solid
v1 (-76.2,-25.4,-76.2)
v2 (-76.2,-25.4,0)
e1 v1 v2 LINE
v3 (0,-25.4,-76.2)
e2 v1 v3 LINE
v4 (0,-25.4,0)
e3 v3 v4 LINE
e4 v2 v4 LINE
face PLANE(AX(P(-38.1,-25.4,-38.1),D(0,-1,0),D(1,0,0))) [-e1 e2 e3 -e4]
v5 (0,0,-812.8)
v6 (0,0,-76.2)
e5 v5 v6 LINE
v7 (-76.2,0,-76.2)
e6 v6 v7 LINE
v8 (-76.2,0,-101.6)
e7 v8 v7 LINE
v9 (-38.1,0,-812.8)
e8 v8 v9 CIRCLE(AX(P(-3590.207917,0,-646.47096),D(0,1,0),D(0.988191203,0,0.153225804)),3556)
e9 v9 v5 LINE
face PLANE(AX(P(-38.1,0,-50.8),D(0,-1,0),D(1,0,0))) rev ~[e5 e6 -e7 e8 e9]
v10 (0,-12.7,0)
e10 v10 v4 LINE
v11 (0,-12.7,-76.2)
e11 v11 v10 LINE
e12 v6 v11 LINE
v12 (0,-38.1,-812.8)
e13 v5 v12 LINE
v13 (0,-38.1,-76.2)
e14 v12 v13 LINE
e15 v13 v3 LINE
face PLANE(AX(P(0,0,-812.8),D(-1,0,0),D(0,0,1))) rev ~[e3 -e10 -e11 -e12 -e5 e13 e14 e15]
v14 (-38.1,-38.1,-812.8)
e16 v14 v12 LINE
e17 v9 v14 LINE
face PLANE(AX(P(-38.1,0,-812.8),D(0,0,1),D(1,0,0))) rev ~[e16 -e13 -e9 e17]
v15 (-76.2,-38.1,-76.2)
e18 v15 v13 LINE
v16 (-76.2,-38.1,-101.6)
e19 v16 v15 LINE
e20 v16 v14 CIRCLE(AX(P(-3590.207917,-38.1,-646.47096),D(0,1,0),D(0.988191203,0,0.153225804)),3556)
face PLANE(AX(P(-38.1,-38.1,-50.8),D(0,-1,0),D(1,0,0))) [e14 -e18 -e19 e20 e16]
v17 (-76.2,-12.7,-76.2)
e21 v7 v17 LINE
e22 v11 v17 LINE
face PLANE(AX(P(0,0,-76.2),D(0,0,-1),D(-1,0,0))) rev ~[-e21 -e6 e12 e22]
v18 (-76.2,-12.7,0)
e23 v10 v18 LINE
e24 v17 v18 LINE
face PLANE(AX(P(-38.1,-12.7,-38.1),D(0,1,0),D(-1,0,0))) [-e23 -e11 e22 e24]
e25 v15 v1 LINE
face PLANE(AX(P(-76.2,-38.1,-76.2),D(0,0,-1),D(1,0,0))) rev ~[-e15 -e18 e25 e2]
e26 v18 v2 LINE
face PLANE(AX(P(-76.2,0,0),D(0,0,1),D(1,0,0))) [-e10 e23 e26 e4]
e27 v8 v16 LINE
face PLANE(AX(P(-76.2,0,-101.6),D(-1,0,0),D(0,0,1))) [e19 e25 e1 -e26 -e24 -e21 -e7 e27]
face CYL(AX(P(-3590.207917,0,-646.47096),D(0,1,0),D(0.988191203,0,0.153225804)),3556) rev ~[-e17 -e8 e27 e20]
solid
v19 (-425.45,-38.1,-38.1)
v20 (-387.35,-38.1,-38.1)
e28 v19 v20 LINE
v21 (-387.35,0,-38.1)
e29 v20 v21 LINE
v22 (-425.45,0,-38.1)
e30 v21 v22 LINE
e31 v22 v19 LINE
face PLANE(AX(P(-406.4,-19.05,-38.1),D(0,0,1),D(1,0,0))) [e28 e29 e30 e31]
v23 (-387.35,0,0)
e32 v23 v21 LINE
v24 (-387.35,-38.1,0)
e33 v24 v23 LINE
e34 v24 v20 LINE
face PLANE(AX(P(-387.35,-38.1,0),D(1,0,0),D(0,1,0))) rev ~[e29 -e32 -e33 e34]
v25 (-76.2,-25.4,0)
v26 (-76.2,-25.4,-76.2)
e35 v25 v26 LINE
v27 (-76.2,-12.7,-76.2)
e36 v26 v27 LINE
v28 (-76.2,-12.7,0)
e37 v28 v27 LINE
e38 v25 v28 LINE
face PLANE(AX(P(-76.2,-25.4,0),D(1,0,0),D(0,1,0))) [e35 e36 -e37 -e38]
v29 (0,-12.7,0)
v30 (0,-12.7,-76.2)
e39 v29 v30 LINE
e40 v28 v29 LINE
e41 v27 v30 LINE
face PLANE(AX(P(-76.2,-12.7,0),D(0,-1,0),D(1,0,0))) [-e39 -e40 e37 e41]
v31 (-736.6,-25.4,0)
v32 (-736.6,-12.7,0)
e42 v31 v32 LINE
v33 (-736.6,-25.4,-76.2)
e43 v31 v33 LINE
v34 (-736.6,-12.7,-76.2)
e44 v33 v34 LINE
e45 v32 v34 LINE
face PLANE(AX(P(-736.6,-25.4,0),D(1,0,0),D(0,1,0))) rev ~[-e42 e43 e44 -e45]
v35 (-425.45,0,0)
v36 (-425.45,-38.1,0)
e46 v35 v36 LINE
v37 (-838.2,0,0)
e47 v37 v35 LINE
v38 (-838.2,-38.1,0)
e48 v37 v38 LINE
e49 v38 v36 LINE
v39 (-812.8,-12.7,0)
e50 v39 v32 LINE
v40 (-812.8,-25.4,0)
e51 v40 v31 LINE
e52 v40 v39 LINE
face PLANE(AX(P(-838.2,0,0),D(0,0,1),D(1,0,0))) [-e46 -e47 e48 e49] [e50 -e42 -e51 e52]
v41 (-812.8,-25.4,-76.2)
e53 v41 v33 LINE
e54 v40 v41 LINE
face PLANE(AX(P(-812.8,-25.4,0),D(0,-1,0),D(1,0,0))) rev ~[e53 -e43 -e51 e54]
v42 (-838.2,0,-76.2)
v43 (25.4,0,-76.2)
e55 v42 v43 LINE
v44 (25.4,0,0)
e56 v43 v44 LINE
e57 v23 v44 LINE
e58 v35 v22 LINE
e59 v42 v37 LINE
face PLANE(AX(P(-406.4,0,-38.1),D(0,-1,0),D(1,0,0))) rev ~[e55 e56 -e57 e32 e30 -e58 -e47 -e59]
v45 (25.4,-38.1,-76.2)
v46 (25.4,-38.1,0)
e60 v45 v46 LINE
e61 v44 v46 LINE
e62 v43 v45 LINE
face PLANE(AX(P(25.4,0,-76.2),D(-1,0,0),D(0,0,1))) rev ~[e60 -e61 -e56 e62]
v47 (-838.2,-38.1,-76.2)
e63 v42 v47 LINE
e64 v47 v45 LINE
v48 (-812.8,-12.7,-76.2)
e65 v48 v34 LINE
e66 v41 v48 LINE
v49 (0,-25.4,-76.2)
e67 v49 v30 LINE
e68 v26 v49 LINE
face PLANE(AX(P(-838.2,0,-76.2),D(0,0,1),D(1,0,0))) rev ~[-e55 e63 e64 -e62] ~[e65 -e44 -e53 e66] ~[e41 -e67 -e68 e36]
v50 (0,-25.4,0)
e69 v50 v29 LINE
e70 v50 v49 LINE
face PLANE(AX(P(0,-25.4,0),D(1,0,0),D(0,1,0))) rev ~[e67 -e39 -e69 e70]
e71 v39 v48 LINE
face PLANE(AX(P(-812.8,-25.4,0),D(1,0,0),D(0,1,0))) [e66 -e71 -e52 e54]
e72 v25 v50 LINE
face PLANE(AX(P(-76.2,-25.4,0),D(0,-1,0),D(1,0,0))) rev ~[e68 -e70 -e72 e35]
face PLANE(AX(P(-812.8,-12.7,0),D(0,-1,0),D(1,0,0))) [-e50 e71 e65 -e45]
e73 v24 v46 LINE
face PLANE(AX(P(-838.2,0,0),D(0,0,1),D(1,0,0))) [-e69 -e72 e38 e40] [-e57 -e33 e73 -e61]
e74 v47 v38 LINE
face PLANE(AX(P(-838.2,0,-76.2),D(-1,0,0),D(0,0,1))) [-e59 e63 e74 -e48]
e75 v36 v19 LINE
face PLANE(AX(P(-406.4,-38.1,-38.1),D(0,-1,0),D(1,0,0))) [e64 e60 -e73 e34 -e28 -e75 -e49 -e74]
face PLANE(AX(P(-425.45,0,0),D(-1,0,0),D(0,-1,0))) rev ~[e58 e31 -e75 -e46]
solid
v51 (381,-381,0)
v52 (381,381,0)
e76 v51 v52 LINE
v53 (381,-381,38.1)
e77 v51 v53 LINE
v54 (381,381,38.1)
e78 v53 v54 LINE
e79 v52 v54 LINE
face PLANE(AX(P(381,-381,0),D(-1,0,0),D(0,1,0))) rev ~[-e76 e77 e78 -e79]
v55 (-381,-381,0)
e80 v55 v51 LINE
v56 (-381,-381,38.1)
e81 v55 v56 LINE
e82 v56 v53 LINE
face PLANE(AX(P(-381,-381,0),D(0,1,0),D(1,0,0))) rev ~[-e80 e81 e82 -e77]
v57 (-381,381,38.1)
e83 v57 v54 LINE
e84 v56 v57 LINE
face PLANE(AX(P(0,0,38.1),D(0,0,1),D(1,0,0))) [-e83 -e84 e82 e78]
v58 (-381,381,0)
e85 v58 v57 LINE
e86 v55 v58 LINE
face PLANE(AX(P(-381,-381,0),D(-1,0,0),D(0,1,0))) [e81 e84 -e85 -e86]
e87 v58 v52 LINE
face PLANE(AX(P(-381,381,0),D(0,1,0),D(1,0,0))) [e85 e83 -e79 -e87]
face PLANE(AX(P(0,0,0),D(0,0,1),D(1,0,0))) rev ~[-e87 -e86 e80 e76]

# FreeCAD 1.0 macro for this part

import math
import FreeCAD as App
import Part
import Sketcher

V = App.Vector
Q = App.Units.Quantity

doc = App.newDocument("Part")
body = doc.addObject("PartDesign::Body", "Body")

sketch1 = body.newObject("Sketcher::SketchObject", "Sketch")
sketch1.AttachmentSupport = (doc.getObject("XZ_Plane"), [""])
sketch1.MapMode = "FlatFace"
sketch1.addGeometry([
    Part.LineSegment(V(-76, 0, 0), V(-76, -102, 0)),
    Part.ArcOfCircle(Part.Circle(V(-3590, -646, 0), V(0, 0, 1), 3556), math.radians(-2.68), math.radians(8.81)),
    Part.LineSegment(V(-38, -813, 0), V(0, -813, 0)),
    Part.LineSegment(V(0, -813, 0), V(0, 0, 0)),
    Part.LineSegment(V(0, 0, 0), V(-76, 0, 0)),
], False)
sketch1.addConstraint([
    Sketcher.Constraint("Coincident", 0, 2, 1, 2),
    Sketcher.Constraint("Coincident", 1, 1, 2, 1),
    Sketcher.Constraint("Coincident", 2, 2, 3, 1),
    Sketcher.Constraint("Coincident", 3, 2, 4, 1),
    Sketcher.Constraint("Coincident", 4, 2, 0, 1),
    Sketcher.Constraint("Vertical", 0),
    Sketcher.Constraint("Horizontal", 2),
    Sketcher.Constraint("Vertical", 3),
    Sketcher.Constraint("Horizontal", 4),
    Sketcher.Constraint("Coincident", 3, 2, -1, 1),
    Sketcher.Constraint("Radius", 1, Q("140 in")),
    Sketcher.Constraint("DistanceX", 4, 2, 4, 1, Q("3 in")),
    Sketcher.Constraint("DistanceY", 0, 2, 0, 1, Q("4 in")),
    Sketcher.Constraint("DistanceY", 3, 1, 3, 2, Q("32 in")),
    Sketcher.Constraint("DistanceX", 2, 1, 2, 2, Q("1.5 in")),
])
pad1 = body.newObject("PartDesign::Pad", "Pad")
pad1.Profile = sketch1
pad1.Length = Q("1.5 in")

sketch2 = body.newObject("Sketcher::SketchObject", "Sketch001")
sketch2.AttachmentSupport = (doc.getObject("XZ_Plane"), [""])
sketch2.MapMode = "FlatFace"
sketch2.AttachmentOffset = App.Placement(V(0, 0, 1.5 * 25.4), App.Rotation())
sketch2.addGeometry([
    Part.LineSegment(V(-76, 0, 0), V(-76, -76, 0)),
    Part.LineSegment(V(-76, -76, 0), V(0, -76, 0)),
    Part.LineSegment(V(0, -76, 0), V(0, 0, 0)),
    Part.LineSegment(V(0, 0, 0), V(-76, 0, 0)),
], False)
sketch2.addConstraint([
    Sketcher.Constraint("Coincident", 0, 2, 1, 1),
    Sketcher.Constraint("Coincident", 1, 2, 2, 1),
    Sketcher.Constraint("Coincident", 2, 2, 3, 1),
    Sketcher.Constraint("Coincident", 3, 2, 0, 1),
    Sketcher.Constraint("Vertical", 0),
    Sketcher.Constraint("Horizontal", 1),
    Sketcher.Constraint("Vertical", 2),
    Sketcher.Constraint("Horizontal", 3),
    Sketcher.Constraint("Coincident", 2, 2, -1, 1),
    Sketcher.Constraint("Equal", 3, 0),
    Sketcher.Constraint("DistanceX", 1, 1, 1, 2, Q("3 in")),
])
pocket1 = body.newObject("PartDesign::Pocket", "Pocket")
pocket1.Profile = sketch2
pocket1.Length = Q("0.5 in")

sketch3 = body.newObject("Sketcher::SketchObject", "Sketch002")
sketch3.AttachmentSupport = (doc.getObject("XZ_Plane"), [""])
sketch3.MapMode = "FlatFace"
sketch3.addGeometry([
    Part.LineSegment(V(0, 0, 0), V(0, -76, 0)),
    Part.LineSegment(V(0, -76, 0), V(-76, -76, 0)),
    Part.LineSegment(V(-76, -76, 0), V(-76, 0, 0)),
    Part.LineSegment(V(-76, 0, 0), V(0, 0, 0)),
], False)
sketch3.addConstraint([
    Sketcher.Constraint("Coincident", 0, 2, 1, 1),
    Sketcher.Constraint("Coincident", 1, 2, 2, 1),
    Sketcher.Constraint("Coincident", 2, 2, 3, 1),
    Sketcher.Constraint("Coincident", 3, 2, 0, 1),
    Sketcher.Constraint("Vertical", 0),
    Sketcher.Constraint("Horizontal", 1),
    Sketcher.Constraint("Vertical", 2),
    Sketcher.Constraint("Horizontal", 3),
    Sketcher.Constraint("Coincident", 3, 2, -1, 1),
    Sketcher.Constraint("Equal", 3, 0),
    Sketcher.Constraint("DistanceX", 1, 2, 1, 1, Q("3 in")),
])
pocket2 = body.newObject("PartDesign::Pocket", "Pocket001")
pocket2.Profile = sketch3
pocket2.Length = Q("0.5 in")
pocket2.Reversed = True
body2 = doc.addObject("PartDesign::Body", "Body001")

sketch4 = body2.newObject("Sketcher::SketchObject", "Sketch003")
sketch4.AttachmentSupport = (doc.getObject("XZ_Plane001"), [""])
sketch4.MapMode = "FlatFace"
sketch4.addGeometry([
    Part.LineSegment(V(-838, 0, 0), V(-838, -76, 0)),
    Part.LineSegment(V(-838, -76, 0), V(25, -76, 0)),
    Part.LineSegment(V(25, -76, 0), V(25, 0, 0)),
    Part.LineSegment(V(25, 0, 0), V(-838, 0, 0)),
], False)
sketch4.addConstraint([
    Sketcher.Constraint("Coincident", 0, 2, 1, 1),
    Sketcher.Constraint("Coincident", 1, 2, 2, 1),
    Sketcher.Constraint("Coincident", 2, 2, 3, 1),
    Sketcher.Constraint("Coincident", 3, 2, 0, 1),
    Sketcher.Constraint("Vertical", 0),
    Sketcher.Constraint("Horizontal", 1),
    Sketcher.Constraint("Vertical", 2),
    Sketcher.Constraint("Horizontal", 3),
    Sketcher.Constraint("PointOnObject", 2, 2, -1),
    Sketcher.Constraint("DistanceX", 1, 1, 1, 2, Q("34 in")),
    Sketcher.Constraint("DistanceY", 0, 2, 0, 1, Q("3 in")),
    Sketcher.Constraint("DistanceX", 0, 2, -1, 1, Q("33 in")),
])
pad2 = body2.newObject("PartDesign::Pad", "Pad001")
pad2.Profile = sketch4
pad2.Length = Q("1.5 in")

sketch5 = body2.newObject("Sketcher::SketchObject", "Sketch004")
sketch5.AttachmentSupport = (doc.getObject("XY_Plane001"), [""])
sketch5.MapMode = "FlatFace"
sketch5.addGeometry([
    Part.LineSegment(V(-76, -13, 0), V(-76, -25, 0)),
    Part.LineSegment(V(-76, -25, 0), V(0, -25, 0)),
    Part.LineSegment(V(0, -25, 0), V(0, -13, 0)),
    Part.LineSegment(V(0, -13, 0), V(-76, -13, 0)),
    Part.LineSegment(V(-813, -13, 0), V(-813, -25, 0)),
    Part.LineSegment(V(-813, -25, 0), V(-737, -25, 0)),
    Part.LineSegment(V(-737, -25, 0), V(-737, -13, 0)),
    Part.LineSegment(V(-737, -13, 0), V(-813, -13, 0)),
], False)
sketch5.addConstraint([
    Sketcher.Constraint("Coincident", 0, 2, 1, 1),
    Sketcher.Constraint("Coincident", 1, 2, 2, 1),
    Sketcher.Constraint("Coincident", 2, 2, 3, 1),
    Sketcher.Constraint("Coincident", 3, 2, 0, 1),
    Sketcher.Constraint("Coincident", 4, 2, 5, 1),
    Sketcher.Constraint("Coincident", 5, 2, 6, 1),
    Sketcher.Constraint("Coincident", 6, 2, 7, 1),
    Sketcher.Constraint("Coincident", 7, 2, 4, 1),
    Sketcher.Constraint("Vertical", 0),
    Sketcher.Constraint("Horizontal", 1),
    Sketcher.Constraint("Vertical", 2),
    Sketcher.Constraint("Horizontal", 3),
    Sketcher.Constraint("Vertical", 4),
    Sketcher.Constraint("Horizontal", 5),
    Sketcher.Constraint("Vertical", 6),
    Sketcher.Constraint("Horizontal", 7),
    Sketcher.Constraint("PointOnObject", 1, 2, -2),
    Sketcher.Constraint("Horizontal", 1, 2, 4, 2),
    Sketcher.Constraint("Horizontal", 3, 2, 6, 2),
    Sketcher.Constraint("Equal", 3, 5),
    Sketcher.Constraint("DistanceX", 1, 1, 1, 2, Q("3 in")),
    Sketcher.Constraint("DistanceY", 0, 2, 0, 1, Q("0.5 in")),
    Sketcher.Constraint("DistanceY", 0, 2, -1, 1, Q("1 in")),
    Sketcher.Constraint("DistanceX", 4, 2, -1, 1, Q("32 in")),
])
pocket3 = body2.newObject("PartDesign::Pocket", "Pocket002")
pocket3.Profile = sketch5
pocket3.Type = "ThroughAll"

sketch6 = body2.newObject("Sketcher::SketchObject", "Sketch005")
sketch6.AttachmentSupport = (doc.getObject("XY_Plane001"), [""])
sketch6.MapMode = "FlatFace"
sketch6.addGeometry([
    Part.LineSegment(V(-425, 0, 0), V(-425, -38, 0)),
    Part.LineSegment(V(-425, -38, 0), V(-387, -38, 0)),
    Part.LineSegment(V(-387, -38, 0), V(-387, 0, 0)),
    Part.LineSegment(V(-387, 0, 0), V(-425, 0, 0)),
], False)
sketch6.addConstraint([
    Sketcher.Constraint("Coincident", 0, 2, 1, 1),
    Sketcher.Constraint("Coincident", 1, 2, 2, 1),
    Sketcher.Constraint("Coincident", 2, 2, 3, 1),
    Sketcher.Constraint("Coincident", 3, 2, 0, 1),
    Sketcher.Constraint("Vertical", 0),
    Sketcher.Constraint("Horizontal", 1),
    Sketcher.Constraint("Vertical", 2),
    Sketcher.Constraint("Horizontal", 3),
    Sketcher.Constraint("PointOnObject", 2, 2, -1),
    Sketcher.Constraint("Equal", 3, 0),
    Sketcher.Constraint("DistanceX", 1, 1, 1, 2, Q("1.5 in")),
    Sketcher.Constraint("DistanceX", 0, 2, -1, 1, Q("16.75 in")),
])
pocket4 = body2.newObject("PartDesign::Pocket", "Pocket003")
pocket4.Profile = sketch6
pocket4.Length = Q("1.5 in")
body3 = doc.addObject("PartDesign::Body", "Body002")

sketch7 = body3.newObject("Sketcher::SketchObject", "Sketch006")
sketch7.AttachmentSupport = (doc.getObject("XY_Plane002"), [""])
sketch7.MapMode = "FlatFace"
sketch7.addGeometry([
    Part.LineSegment(V(-381, 381, 0), V(-381, -381, 0)),
    Part.LineSegment(V(-381, -381, 0), V(381, -381, 0)),
    Part.LineSegment(V(381, -381, 0), V(381, 381, 0)),
    Part.LineSegment(V(381, 381, 0), V(-381, 381, 0)),
], False)
sketch7.addConstraint([
    Sketcher.Constraint("Coincident", 0, 2, 1, 1),
    Sketcher.Constraint("Coincident", 1, 2, 2, 1),
    Sketcher.Constraint("Coincident", 2, 2, 3, 1),
    Sketcher.Constraint("Coincident", 3, 2, 0, 1),
    Sketcher.Constraint("Vertical", 0),
    Sketcher.Constraint("Horizontal", 1),
    Sketcher.Constraint("Vertical", 2),
    Sketcher.Constraint("Horizontal", 3),
    Sketcher.Constraint("Symmetric", 0, 2, 2, 2, -1, 1),
    Sketcher.Constraint("Equal", 3, 0),
    Sketcher.Constraint("DistanceX", 1, 1, 1, 2, Q("30 in")),
])
pad3 = body3.newObject("PartDesign::Pad", "Pad002")
pad3.Profile = sketch7
pad3.Length = Q("1.5 in")

doc.recompute()
